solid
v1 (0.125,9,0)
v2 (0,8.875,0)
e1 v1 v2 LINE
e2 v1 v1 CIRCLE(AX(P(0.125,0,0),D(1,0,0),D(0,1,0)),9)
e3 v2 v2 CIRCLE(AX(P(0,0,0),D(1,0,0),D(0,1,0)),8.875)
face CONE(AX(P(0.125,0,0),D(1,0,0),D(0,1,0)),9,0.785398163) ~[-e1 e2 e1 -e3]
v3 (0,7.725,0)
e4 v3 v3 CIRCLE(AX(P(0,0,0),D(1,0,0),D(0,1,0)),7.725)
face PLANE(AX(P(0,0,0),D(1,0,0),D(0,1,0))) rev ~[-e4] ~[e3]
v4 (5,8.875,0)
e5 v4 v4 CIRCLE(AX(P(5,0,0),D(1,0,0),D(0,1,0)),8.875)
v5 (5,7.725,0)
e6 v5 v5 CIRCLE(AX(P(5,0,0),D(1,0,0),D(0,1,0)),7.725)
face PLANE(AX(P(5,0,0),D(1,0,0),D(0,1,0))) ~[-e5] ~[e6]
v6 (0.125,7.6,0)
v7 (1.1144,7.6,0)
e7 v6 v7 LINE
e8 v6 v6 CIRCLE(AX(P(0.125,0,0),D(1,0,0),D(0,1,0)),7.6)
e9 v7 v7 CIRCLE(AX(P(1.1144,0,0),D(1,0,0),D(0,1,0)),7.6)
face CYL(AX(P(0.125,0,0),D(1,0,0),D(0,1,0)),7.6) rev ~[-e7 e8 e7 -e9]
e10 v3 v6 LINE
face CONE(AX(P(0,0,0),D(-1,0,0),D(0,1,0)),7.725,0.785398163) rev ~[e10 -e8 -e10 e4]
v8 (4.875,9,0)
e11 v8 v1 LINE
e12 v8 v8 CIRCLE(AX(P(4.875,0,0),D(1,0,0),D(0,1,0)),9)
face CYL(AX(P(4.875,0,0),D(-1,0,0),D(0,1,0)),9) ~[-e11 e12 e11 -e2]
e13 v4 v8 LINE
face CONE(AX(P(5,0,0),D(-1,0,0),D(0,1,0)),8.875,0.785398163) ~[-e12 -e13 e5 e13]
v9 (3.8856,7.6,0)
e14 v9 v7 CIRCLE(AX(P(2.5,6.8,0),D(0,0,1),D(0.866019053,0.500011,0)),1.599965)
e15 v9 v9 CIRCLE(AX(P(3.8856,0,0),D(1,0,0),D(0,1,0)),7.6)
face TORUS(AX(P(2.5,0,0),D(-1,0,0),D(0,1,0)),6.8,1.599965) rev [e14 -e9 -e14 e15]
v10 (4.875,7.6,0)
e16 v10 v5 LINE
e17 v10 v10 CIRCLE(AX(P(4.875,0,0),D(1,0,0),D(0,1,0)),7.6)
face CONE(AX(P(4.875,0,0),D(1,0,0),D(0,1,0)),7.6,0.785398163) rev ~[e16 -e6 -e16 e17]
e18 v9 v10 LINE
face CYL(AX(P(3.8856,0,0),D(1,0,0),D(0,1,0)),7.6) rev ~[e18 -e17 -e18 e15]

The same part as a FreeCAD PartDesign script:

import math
import FreeCAD as App
import Part
import Sketcher

V = App.Vector
Q = App.Units.Quantity

doc = App.newDocument("Part")
body = doc.addObject("PartDesign::Body", "Body")

# Sketch on XY plane
sketch1 = body.newObject("Sketcher::SketchObject", "Sketch")
sketch1.AttachmentSupport = (doc.getObject("XY_Plane"), [""])
sketch1.MapMode = "FlatFace"
sketch1.addGeometry([
    Part.LineSegment(V(0.12, 9, 0), V(0, 8.88, 0)),  # 0
    Part.LineSegment(V(0, 8.88, 0), V(0, 7.72, 0)),  # 1
    Part.LineSegment(V(0, 7.72, 0), V(0.12, 7.6, 0)),  # 2
    Part.LineSegment(V(0.12, 7.6, 0), V(1.11, 7.6, 0)),  # 3
    Part.ArcOfCircle(Part.Circle(V(2.5, 6.8, 0), V(0, 0, 1), 1.6), math.radians(30), math.radians(150)),  # 4
    Part.LineSegment(V(3.89, 7.6, 0), V(4.88, 7.6, 0)),  # 5
    Part.LineSegment(V(4.88, 7.6, 0), V(5, 7.72, 0)),  # 6
    Part.LineSegment(V(5, 7.72, 0), V(5, 8.88, 0)),  # 7
    Part.LineSegment(V(5, 8.88, 0), V(4.88, 9, 0)),  # 8
    Part.LineSegment(V(4.88, 9, 0), V(0.12, 9, 0)),  # 9
], False)
sketch1.addConstraint([
    Sketcher.Constraint("Coincident", 0, 2, 1, 1),
    Sketcher.Constraint("Coincident", 1, 2, 2, 1),
    Sketcher.Constraint("Coincident", 2, 2, 3, 1),
    Sketcher.Constraint("Coincident", 3, 2, 4, 2),
    Sketcher.Constraint("Coincident", 4, 1, 5, 1),
    Sketcher.Constraint("Coincident", 5, 2, 6, 1),
    Sketcher.Constraint("Coincident", 6, 2, 7, 1),
    Sketcher.Constraint("Coincident", 7, 2, 8, 1),
    Sketcher.Constraint("Coincident", 8, 2, 9, 1),
    Sketcher.Constraint("Coincident", 9, 2, 0, 1),
    Sketcher.Constraint("Vertical", 1),
    Sketcher.Constraint("Horizontal", 3),
    Sketcher.Constraint("Horizontal", 5),
    Sketcher.Constraint("Vertical", 7),
    Sketcher.Constraint("Horizontal", 9),
    Sketcher.Constraint("PointOnObject", 0, 2, -2),
    Sketcher.Constraint("Perpendicular", 0, 2),
    Sketcher.Constraint("Perpendicular", 2, 6),
    Sketcher.Constraint("Perpendicular", 6, 8),
    Sketcher.Constraint("Horizontal", 3, 2, 4, 1),
    Sketcher.Constraint("Horizontal", 1, 2, 6, 2),
    Sketcher.Constraint("Horizontal", 0, 2, 7, 2),
    Sketcher.Constraint("Vertical", 5, 2, 8, 2),
    Sketcher.Constraint("Vertical", 2, 2, 9, 2),
    Sketcher.Constraint("Equal", 3, 5),
    Sketcher.Constraint("Radius", 4, Q("1.6 mm")),
    Sketcher.Constraint("DistanceX", -1, 1, 6, 2, Q("5 mm")),
    Sketcher.Constraint("DistanceY", -1, 1, 8, 2, Q("9 mm")),
    Sketcher.Constraint("DistanceX", 9, 2, 9, 1, Q("4.75 mm")),
    Sketcher.Constraint("DistanceY", 1, 2, 1, 1, Q("1.15 mm")),
    Sketcher.Constraint("DistanceY", -1, 1, 4, 3, Q("6.8 mm")),
])
revolution = body.newObject("PartDesign::Revolution", "Revolution")
revolution.Profile = sketch1
revolution.ReferenceAxis = (sketch1, ["H_Axis"])
revolution.Angle = 360

doc.recompute()
